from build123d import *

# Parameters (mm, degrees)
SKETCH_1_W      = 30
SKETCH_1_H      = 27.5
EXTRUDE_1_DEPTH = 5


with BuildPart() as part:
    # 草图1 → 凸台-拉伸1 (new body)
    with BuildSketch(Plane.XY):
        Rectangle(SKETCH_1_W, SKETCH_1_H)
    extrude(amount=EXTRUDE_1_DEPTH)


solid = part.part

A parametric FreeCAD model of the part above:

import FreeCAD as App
import Part
import Sketcher


def add_polygon(sketch, points):
    """Adds a closed chain of lines whose ends are joined by coincident constraints."""
    first, n = sketch.GeometryCount, len(points)
    for a, b in zip(points, points[1:] + points[:1]):
        sketch.addGeometry(Part.LineSegment(App.Vector(*a, 0), App.Vector(*b, 0)), False)
    for i in range(n):
        sketch.addConstraint(Sketcher.Constraint("Coincident", first + i, 2, first + (i + 1) % n, 1))

doc = App.newDocument("Part")
body = doc.addObject("PartDesign::Body", "Body")

sketch1 = doc.addObject("Sketcher::SketchObject", "Sketch")
body.addObject(sketch1)
sketch1.AttachmentSupport = (doc.XY_Plane, [""])
sketch1.MapMode = "FlatFace"
add_polygon(sketch1, [(-15, 13.75), (-15, -13.75), (15, -13.75), (15, 13.75)])
sketch1.addConstraint([
    Sketcher.Constraint("Vertical", 0),
    Sketcher.Constraint("Horizontal", 1),
    Sketcher.Constraint("Vertical", 2),
    Sketcher.Constraint("Horizontal", 3),
    Sketcher.Constraint("Symmetric", 0, 2, 2, 2, -1, 1),
    Sketcher.Constraint("DistanceX", 1, 1, 1, 2, 30.0),
    Sketcher.Constraint("DistanceY", 0, 2, 0, 1, 27.5),
])
pad1 = doc.addObject("PartDesign::Pad", "Pad")
body.addObject(pad1)
pad1.Profile = sketch1
pad1.Length = 5

doc.recompute()
